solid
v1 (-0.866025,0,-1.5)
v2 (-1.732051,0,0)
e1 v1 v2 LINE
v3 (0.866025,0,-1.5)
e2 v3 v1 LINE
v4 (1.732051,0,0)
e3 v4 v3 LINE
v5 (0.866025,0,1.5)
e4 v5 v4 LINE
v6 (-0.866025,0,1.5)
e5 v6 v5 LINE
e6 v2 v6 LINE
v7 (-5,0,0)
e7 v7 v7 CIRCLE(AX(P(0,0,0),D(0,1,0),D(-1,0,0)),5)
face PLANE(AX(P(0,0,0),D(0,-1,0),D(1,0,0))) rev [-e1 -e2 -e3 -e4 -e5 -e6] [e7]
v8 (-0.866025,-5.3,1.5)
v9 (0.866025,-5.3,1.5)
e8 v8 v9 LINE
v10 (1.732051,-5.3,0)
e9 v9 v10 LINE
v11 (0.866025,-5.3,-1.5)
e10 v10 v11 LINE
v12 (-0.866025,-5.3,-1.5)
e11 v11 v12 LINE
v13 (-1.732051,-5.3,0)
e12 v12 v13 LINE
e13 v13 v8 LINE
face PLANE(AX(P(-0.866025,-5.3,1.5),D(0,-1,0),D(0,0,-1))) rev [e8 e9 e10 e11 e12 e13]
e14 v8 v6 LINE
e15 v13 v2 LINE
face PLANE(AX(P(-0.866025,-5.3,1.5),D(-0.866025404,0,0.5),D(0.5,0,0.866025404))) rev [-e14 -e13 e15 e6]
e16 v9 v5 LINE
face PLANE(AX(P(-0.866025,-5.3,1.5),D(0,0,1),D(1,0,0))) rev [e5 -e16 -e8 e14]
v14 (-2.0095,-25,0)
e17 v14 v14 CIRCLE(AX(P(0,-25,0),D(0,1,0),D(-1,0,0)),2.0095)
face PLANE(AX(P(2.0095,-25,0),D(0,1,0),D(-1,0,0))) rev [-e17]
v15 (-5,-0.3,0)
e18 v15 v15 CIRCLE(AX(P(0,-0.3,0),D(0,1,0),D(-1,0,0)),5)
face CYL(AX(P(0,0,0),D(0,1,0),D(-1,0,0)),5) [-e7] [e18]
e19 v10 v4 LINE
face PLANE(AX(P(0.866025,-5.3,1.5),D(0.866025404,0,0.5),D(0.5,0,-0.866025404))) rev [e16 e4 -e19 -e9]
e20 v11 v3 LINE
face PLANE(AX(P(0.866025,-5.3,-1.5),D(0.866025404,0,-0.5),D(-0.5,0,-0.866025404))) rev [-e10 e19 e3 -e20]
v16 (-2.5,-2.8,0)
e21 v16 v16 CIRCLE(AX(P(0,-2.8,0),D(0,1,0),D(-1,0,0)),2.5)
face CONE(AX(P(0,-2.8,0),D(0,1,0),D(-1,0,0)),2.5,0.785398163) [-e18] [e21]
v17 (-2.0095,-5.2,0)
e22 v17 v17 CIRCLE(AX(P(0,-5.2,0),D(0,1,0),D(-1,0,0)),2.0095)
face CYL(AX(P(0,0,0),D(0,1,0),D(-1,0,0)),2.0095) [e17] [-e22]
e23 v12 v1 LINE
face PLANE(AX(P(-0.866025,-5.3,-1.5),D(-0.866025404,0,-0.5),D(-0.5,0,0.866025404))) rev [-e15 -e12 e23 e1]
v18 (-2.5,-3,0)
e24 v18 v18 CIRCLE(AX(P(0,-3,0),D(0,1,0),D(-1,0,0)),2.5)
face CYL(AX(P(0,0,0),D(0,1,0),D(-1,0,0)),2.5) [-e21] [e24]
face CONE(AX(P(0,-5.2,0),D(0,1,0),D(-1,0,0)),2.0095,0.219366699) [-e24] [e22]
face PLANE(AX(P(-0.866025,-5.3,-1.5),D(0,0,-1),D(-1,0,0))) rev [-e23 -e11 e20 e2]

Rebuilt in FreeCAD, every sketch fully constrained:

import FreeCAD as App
import Part
import Sketcher

V = App.Vector
Q = App.Units.Quantity

doc = App.newDocument("Part")
body = doc.addObject("PartDesign::Body", "Body")

sketch1 = body.newObject("Sketcher::SketchObject", "Sketch")
sketch1.AttachmentSupport = (doc.getObject("XY_Plane"), [""])
sketch1.MapMode = "FlatFace"
sketch1.addGeometry(Part.LineSegment(V(5, 0, 0), V(0, 0, 0)), False)
sketch1.addGeometry(Part.LineSegment(V(0, 0, 0), V(0, -25, 0)), False)
sketch1.addGeometry(Part.LineSegment(V(0, -25, 0), V(2.01, -25, 0)), False)
sketch1.addGeometry(Part.LineSegment(V(2.01, -25, 0), V(2.01, -5.2, 0)), False)
sketch1.addGeometry(Part.LineSegment(V(2.01, -5.2, 0), V(2.5, -3, 0)), False)
sketch1.addGeometry(Part.LineSegment(V(2.5, -3, 0), V(2.5, -2.8, 0)), False)
sketch1.addGeometry(Part.LineSegment(V(2.5, -2.8, 0), V(5, -0.3, 0)), False)
sketch1.addGeometry(Part.LineSegment(V(5, -0.3, 0), V(5, 0, 0)), False)
sketch1.addConstraint(Sketcher.Constraint("Coincident", 0, 2, 1, 1))
sketch1.addConstraint(Sketcher.Constraint("Coincident", 1, 2, 2, 1))
sketch1.addConstraint(Sketcher.Constraint("Coincident", 2, 2, 3, 1))
sketch1.addConstraint(Sketcher.Constraint("Coincident", 3, 2, 4, 1))
sketch1.addConstraint(Sketcher.Constraint("Coincident", 4, 2, 5, 1))
sketch1.addConstraint(Sketcher.Constraint("Coincident", 5, 2, 6, 1))
sketch1.addConstraint(Sketcher.Constraint("Coincident", 6, 2, 7, 1))
sketch1.addConstraint(Sketcher.Constraint("Coincident", 7, 2, 0, 1))
sketch1.addConstraint(Sketcher.Constraint("Horizontal", 0))
sketch1.addConstraint(Sketcher.Constraint("Vertical", 1))
sketch1.addConstraint(Sketcher.Constraint("Horizontal", 2))
sketch1.addConstraint(Sketcher.Constraint("Vertical", 3))
sketch1.addConstraint(Sketcher.Constraint("Vertical", 5))
sketch1.addConstraint(Sketcher.Constraint("Vertical", 7))
sketch1.addConstraint(Sketcher.Constraint("Coincident", 0, 2, -1, 1))
sketch1.addConstraint(Sketcher.Constraint("DistanceX", 0, 2, 0, 1, Q("5 mm")))
sketch1.addConstraint(Sketcher.Constraint("DistanceY", 1, 2, 1, 1, Q("25 mm")))
sketch1.addConstraint(Sketcher.Constraint("Angle", 6, Q("45 deg")))
sketch1.addConstraint(Sketcher.Constraint("DistanceY", 3, 1, 3, 2, Q("19.8 mm")))
sketch1.addConstraint(Sketcher.Constraint("DistanceY", 5, 1, 5, 2, Q("0.2 mm")))
sketch1.addConstraint(Sketcher.Constraint("DistanceY", 7, 1, 7, 2, Q("0.3 mm")))
sketch1.addConstraint(Sketcher.Constraint("DistanceY", 4, 2, -1, 1, Q("3 mm")))
sketch1.addConstraint(Sketcher.Constraint("DistanceX", 2, 1, 2, 2, Q("2.0095 mm")))
revolution = body.newObject("PartDesign::Revolution", "Revolution")
revolution.Profile = sketch1
revolution.ReferenceAxis = (sketch1, ["V_Axis"])
revolution.Angle = 360

sketch2 = body.newObject("Sketcher::SketchObject", "Sketch001")
sketch2.AttachmentSupport = (doc.getObject("XZ_Plane"), [""])
sketch2.MapMode = "FlatFace"
sketch2.addGeometry(Part.LineSegment(V(0.9, -1.5, 0), V(-0.9, -1.5, 0)), False)
sketch2.addGeometry(Part.LineSegment(V(-0.9, -1.5, 0), V(-1.7, 0, 0)), False)
sketch2.addGeometry(Part.LineSegment(V(-1.7, 0, 0), V(-0.9, 1.5, 0)), False)
sketch2.addGeometry(Part.LineSegment(V(-0.9, 1.5, 0), V(0.9, 1.5, 0)), False)
sketch2.addGeometry(Part.LineSegment(V(0.9, 1.5, 0), V(1.7, 0, 0)), False)
sketch2.addGeometry(Part.LineSegment(V(1.7, 0, 0), V(0.9, -1.5, 0)), False)
sketch2.addConstraint(Sketcher.Constraint("Coincident", 0, 2, 1, 1))
sketch2.addConstraint(Sketcher.Constraint("Coincident", 1, 2, 2, 1))
sketch2.addConstraint(Sketcher.Constraint("Coincident", 2, 2, 3, 1))
sketch2.addConstraint(Sketcher.Constraint("Coincident", 3, 2, 4, 1))
sketch2.addConstraint(Sketcher.Constraint("Coincident", 4, 2, 5, 1))
sketch2.addConstraint(Sketcher.Constraint("Coincident", 5, 2, 0, 1))
sketch2.addConstraint(Sketcher.Constraint("Horizontal", 0))
sketch2.addConstraint(Sketcher.Constraint("Horizontal", 3))
sketch2.addConstraint(Sketcher.Constraint("Symmetric", 0, 2, 3, 2, -1, 1))
sketch2.addConstraint(Sketcher.Constraint("Symmetric", 1, 2, 4, 2, -1, 1))
sketch2.addConstraint(Sketcher.Constraint("PointOnObject", 1, 2, -1))
sketch2.addConstraint(Sketcher.Constraint("Parallel", 2, 5))
sketch2.addConstraint(Sketcher.Constraint("Vertical", 0, 2, 2, 2))
sketch2.addConstraint(Sketcher.Constraint("Angle", 1, Q("120 deg")))
sketch2.addConstraint(Sketcher.Constraint("DistanceY", 0, 2, 2, 2, Q("3 mm")))
sketch2.addConstraint(Sketcher.Constraint("DistanceX", 0, 2, 0, 1, Q("1.732051 mm")))
pocket1 = body.newObject("PartDesign::Pocket", "Pocket")
pocket1.Profile = sketch2
pocket1.Length = 5.3
pocket1.Reversed = True

doc.recompute()
